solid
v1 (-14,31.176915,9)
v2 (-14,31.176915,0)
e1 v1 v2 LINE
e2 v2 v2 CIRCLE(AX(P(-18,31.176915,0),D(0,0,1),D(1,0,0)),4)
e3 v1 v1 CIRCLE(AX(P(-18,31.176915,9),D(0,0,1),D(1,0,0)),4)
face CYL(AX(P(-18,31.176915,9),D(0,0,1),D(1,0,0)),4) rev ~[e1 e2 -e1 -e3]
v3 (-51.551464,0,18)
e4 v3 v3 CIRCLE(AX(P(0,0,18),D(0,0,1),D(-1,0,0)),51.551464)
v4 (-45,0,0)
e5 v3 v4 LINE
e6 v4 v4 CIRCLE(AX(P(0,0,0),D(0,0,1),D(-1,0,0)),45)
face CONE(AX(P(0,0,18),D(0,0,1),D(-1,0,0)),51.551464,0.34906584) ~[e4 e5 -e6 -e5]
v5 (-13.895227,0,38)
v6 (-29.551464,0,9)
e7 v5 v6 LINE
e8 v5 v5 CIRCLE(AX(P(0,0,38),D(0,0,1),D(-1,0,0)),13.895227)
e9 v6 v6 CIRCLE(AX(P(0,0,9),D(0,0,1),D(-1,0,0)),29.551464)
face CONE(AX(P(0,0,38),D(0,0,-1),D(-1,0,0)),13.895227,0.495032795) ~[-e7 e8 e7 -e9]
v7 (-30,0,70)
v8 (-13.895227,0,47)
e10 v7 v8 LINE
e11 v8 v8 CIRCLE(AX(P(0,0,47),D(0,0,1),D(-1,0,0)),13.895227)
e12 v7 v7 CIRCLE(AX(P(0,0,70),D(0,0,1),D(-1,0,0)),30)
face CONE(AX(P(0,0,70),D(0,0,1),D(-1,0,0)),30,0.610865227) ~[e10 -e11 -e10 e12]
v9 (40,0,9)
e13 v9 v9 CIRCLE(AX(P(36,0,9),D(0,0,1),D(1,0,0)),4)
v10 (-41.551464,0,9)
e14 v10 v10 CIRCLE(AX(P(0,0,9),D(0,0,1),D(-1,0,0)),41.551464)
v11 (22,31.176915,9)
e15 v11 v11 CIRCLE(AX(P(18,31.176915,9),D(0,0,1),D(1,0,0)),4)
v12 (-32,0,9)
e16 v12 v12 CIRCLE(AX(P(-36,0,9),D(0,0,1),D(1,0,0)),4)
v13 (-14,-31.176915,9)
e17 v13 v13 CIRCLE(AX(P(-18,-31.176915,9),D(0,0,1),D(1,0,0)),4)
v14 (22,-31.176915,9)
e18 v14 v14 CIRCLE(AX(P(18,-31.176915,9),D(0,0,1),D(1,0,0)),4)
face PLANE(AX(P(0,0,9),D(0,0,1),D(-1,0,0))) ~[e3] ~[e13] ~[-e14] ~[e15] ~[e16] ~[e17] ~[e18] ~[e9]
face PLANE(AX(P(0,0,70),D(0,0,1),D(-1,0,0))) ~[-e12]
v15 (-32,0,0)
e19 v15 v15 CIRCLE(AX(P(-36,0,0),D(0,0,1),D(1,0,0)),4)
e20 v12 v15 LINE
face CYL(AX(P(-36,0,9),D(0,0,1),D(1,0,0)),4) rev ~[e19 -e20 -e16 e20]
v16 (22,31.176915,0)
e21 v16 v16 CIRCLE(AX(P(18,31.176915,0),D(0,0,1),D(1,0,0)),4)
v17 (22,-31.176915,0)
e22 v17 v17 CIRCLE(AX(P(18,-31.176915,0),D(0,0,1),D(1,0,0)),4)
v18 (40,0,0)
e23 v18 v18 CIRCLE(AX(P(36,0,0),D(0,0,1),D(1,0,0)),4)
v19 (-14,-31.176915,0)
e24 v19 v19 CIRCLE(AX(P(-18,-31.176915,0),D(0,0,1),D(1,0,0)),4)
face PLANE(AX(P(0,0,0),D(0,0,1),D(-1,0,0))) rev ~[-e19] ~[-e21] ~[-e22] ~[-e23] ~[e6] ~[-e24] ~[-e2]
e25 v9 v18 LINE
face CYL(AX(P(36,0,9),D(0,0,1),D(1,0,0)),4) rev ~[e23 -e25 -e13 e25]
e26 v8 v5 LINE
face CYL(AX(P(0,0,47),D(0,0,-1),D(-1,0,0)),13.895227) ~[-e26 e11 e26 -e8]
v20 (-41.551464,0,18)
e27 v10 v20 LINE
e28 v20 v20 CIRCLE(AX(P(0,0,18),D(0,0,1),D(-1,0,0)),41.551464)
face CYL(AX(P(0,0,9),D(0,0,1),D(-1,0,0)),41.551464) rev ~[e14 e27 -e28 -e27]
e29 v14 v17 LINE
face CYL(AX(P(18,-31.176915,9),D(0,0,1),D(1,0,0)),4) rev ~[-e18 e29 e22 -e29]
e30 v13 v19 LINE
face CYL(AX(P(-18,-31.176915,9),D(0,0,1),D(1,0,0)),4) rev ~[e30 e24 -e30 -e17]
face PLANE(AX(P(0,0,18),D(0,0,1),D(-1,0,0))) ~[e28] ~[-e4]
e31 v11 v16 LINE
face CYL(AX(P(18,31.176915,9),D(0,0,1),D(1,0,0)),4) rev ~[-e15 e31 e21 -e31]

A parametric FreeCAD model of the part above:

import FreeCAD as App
import Part
import Sketcher

V = App.Vector
Q = App.Units.Quantity

doc = App.newDocument("Part")
body = doc.addObject("PartDesign::Body", "Body")

sketch1 = body.newObject("Sketcher::SketchObject", "Sketch")
sketch1.AttachmentSupport = (doc.getObject("XZ_Plane"), [""])
sketch1.MapMode = "FlatFace"
sketch1.addGeometry([
    Part.LineSegment(V(0, 0, 0), V(0, 70, 0)),
    Part.LineSegment(V(0, 70, 0), V(-30, 70, 0)),
    Part.LineSegment(V(-30, 70, 0), V(-14, 47, 0)),
    Part.LineSegment(V(-14, 47, 0), V(-14, 38, 0)),
    Part.LineSegment(V(-14, 38, 0), V(-30, 9, 0)),
    Part.LineSegment(V(-30, 9, 0), V(-42, 9, 0)),
    Part.LineSegment(V(-42, 9, 0), V(-42, 18, 0)),
    Part.LineSegment(V(-42, 18, 0), V(-52, 18, 0)),
    Part.LineSegment(V(-52, 18, 0), V(-45, 0, 0)),
    Part.LineSegment(V(-45, 0, 0), V(0, 0, 0)),
], False)
sketch1.addConstraint([
    Sketcher.Constraint("Coincident", 0, 2, 1, 1),
    Sketcher.Constraint("Coincident", 1, 2, 2, 1),
    Sketcher.Constraint("Coincident", 2, 2, 3, 1),
    Sketcher.Constraint("Coincident", 3, 2, 4, 1),
    Sketcher.Constraint("Coincident", 4, 2, 5, 1),
    Sketcher.Constraint("Coincident", 5, 2, 6, 1),
    Sketcher.Constraint("Coincident", 6, 2, 7, 1),
    Sketcher.Constraint("Coincident", 7, 2, 8, 1),
    Sketcher.Constraint("Coincident", 8, 2, 9, 1),
    Sketcher.Constraint("Coincident", 9, 2, 0, 1),
    Sketcher.Constraint("Vertical", 0),
    Sketcher.Constraint("Horizontal", 1),
    Sketcher.Constraint("Vertical", 3),
    Sketcher.Constraint("Horizontal", 5),
    Sketcher.Constraint("Vertical", 6),
    Sketcher.Constraint("Horizontal", 7),
    Sketcher.Constraint("Horizontal", 9),
    Sketcher.Constraint("Coincident", 9, 2, -1, 1),
    Sketcher.Constraint("Equal", 3, 6),
    Sketcher.Constraint("DistanceX", 1, 2, 1, 1, Q("30 mm")),
    Sketcher.Constraint("DistanceX", 5, 2, 5, 1, Q("12 mm")),
    Sketcher.Constraint("DistanceX", 7, 2, 7, 1, Q("10 mm")),
    Sketcher.Constraint("DistanceX", 9, 1, 9, 2, Q("45 mm")),
    Sketcher.Constraint("DistanceY", 0, 1, 0, 2, Q("70 mm")),
    Sketcher.Constraint("DistanceY", 3, 2, 3, 1, Q("9 mm")),
    Sketcher.Constraint("Angle", 2, Q("-55.000001 deg")),
    Sketcher.Constraint("Angle", 8, Q("-70.000001 deg")),
    Sketcher.Constraint("DistanceY", -1, 1, 2, 2, Q("47 mm")),
    Sketcher.Constraint("DistanceY", -1, 1, 4, 2, Q("9 mm")),
])
revolution = body.newObject("PartDesign::Revolution", "Revolution")
revolution.Profile = sketch1
revolution.ReferenceAxis = (sketch1, ["V_Axis"])
revolution.Angle = 360

sketch2 = body.newObject("Sketcher::SketchObject", "Sketch001")
sketch2.AttachmentSupport = (doc.getObject("XY_Plane"), [""])
sketch2.MapMode = "FlatFace"
sketch2.AttachmentOffset = App.Placement(V(0, 0, 9), App.Rotation())
sketch2.addGeometry([
    Part.Circle(V(-36, 0, 0), V(0, 0, 1), 4),
    Part.Circle(V(-18, -31.2, 0), V(0, 0, 1), 4),
    Part.Circle(V(18, -31.2, 0), V(0, 0, 1), 4),
    Part.Circle(V(36, 0, 0), V(0, 0, 1), 4),
    Part.Circle(V(18, 31.2, 0), V(0, 0, 1), 4),
    Part.Circle(V(-18, 31.2, 0), V(0, 0, 1), 4),
], False)
sketch2.addConstraint([
    Sketcher.Constraint("Equal", 0, 1),
    Sketcher.Constraint("Equal", 1, 2),
    Sketcher.Constraint("Equal", 2, 3),
    Sketcher.Constraint("Equal", 3, 4),
    Sketcher.Constraint("Equal", 4, 5),
    Sketcher.Constraint("Symmetric", 0, 3, 3, 3, -1, 1),
    Sketcher.Constraint("Symmetric", 1, 3, 4, 3, -1, 1),
    Sketcher.Constraint("Symmetric", 2, 3, 5, 3, -1, 1),
    Sketcher.Constraint("Symmetric", 1, 3, 2, 3, -2),
    Sketcher.Constraint("PointOnObject", 0, 3, -1),
    Sketcher.Constraint("Diameter", 0, Q("8 mm")),
    Sketcher.Constraint("DistanceX", 0, 3, -1, 1, Q("36 mm")),
    Sketcher.Constraint("DistanceX", 1, 3, -1, 1, Q("18 mm")),
    Sketcher.Constraint("DistanceY", 2, 3, 4, 3, Q("62.35383 mm")),
])
pocket1 = body.newObject("PartDesign::Pocket", "Pocket")
pocket1.Profile = sketch2
pocket1.Length = 25

doc.recompute()
